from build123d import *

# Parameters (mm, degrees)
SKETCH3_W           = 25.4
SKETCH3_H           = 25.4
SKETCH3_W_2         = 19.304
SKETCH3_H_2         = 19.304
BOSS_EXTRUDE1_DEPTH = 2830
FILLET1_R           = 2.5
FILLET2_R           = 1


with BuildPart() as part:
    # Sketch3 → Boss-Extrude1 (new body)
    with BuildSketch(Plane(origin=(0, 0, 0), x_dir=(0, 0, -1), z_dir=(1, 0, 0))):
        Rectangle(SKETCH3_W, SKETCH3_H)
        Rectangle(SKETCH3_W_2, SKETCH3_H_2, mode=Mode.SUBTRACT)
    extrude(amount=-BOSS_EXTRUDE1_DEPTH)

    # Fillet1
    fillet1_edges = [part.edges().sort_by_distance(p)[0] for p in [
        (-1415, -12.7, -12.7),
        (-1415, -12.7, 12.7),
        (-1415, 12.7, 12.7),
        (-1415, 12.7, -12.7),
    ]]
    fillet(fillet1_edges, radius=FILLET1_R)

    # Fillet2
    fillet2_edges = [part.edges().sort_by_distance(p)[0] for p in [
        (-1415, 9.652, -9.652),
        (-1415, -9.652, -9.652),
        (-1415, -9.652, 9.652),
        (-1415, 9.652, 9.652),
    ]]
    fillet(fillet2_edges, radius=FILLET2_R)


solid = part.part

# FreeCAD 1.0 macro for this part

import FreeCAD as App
import Part
import Sketcher

V = App.Vector


def edges_at(feature, points):
    """Names of the edges that pass closest to the given points."""
    edges = feature.Shape.Edges
    near = lambda p: min(range(len(edges)), key=lambda i: edges[i].distToShape(Part.Vertex(*p))[0])
    return sorted({f"Edge{near(p) + 1}" for p in points})

doc = App.newDocument("Part")
body = doc.addObject("PartDesign::Body", "Body")

# Sketch on YZ plane
sketch1 = body.newObject("Sketcher::SketchObject", "Sketch")
sketch1.AttachmentSupport = (doc.getObject("YZ_Plane"), [""])
sketch1.MapMode = "FlatFace"
sketch1.addGeometry(Part.LineSegment(V(13, 13, 0), V(-13, 13, 0)), False)
sketch1.addGeometry(Part.LineSegment(V(-13, 13, 0), V(-13, -13, 0)), False)
sketch1.addGeometry(Part.LineSegment(V(-13, -13, 0), V(13, -13, 0)), False)
sketch1.addGeometry(Part.LineSegment(V(13, -13, 0), V(13, 13, 0)), False)
sketch1.addGeometry(Part.LineSegment(V(-10, -10, 0), V(-10, 10, 0)), False)
sketch1.addGeometry(Part.LineSegment(V(-10, 10, 0), V(10, 10, 0)), False)
sketch1.addGeometry(Part.LineSegment(V(10, 10, 0), V(10, -10, 0)), False)
sketch1.addGeometry(Part.LineSegment(V(10, -10, 0), V(-10, -10, 0)), False)
sketch1.addConstraint(Sketcher.Constraint("Coincident", 0, 2, 1, 1))
sketch1.addConstraint(Sketcher.Constraint("Coincident", 1, 2, 2, 1))
sketch1.addConstraint(Sketcher.Constraint("Coincident", 2, 2, 3, 1))
sketch1.addConstraint(Sketcher.Constraint("Coincident", 3, 2, 0, 1))
sketch1.addConstraint(Sketcher.Constraint("Coincident", 4, 2, 5, 1))
sketch1.addConstraint(Sketcher.Constraint("Coincident", 5, 2, 6, 1))
sketch1.addConstraint(Sketcher.Constraint("Coincident", 6, 2, 7, 1))
sketch1.addConstraint(Sketcher.Constraint("Coincident", 7, 2, 4, 1))
sketch1.addConstraint(Sketcher.Constraint("Horizontal", 0))
sketch1.addConstraint(Sketcher.Constraint("Vertical", 1))
sketch1.addConstraint(Sketcher.Constraint("Horizontal", 2))
sketch1.addConstraint(Sketcher.Constraint("Vertical", 3))
sketch1.addConstraint(Sketcher.Constraint("Vertical", 4))
sketch1.addConstraint(Sketcher.Constraint("Horizontal", 5))
sketch1.addConstraint(Sketcher.Constraint("Vertical", 6))
sketch1.addConstraint(Sketcher.Constraint("Horizontal", 7))
sketch1.addConstraint(Sketcher.Constraint("Symmetric", 0, 2, 2, 2, -1, 1))
sketch1.addConstraint(Sketcher.Constraint("Symmetric", 4, 2, 6, 2, -1, 1))
sketch1.addConstraint(Sketcher.Constraint("Equal", 2, 1))
sketch1.addConstraint(Sketcher.Constraint("Equal", 7, 4))
sketch1.addConstraint(Sketcher.Constraint("DistanceX", 0, 2, 0, 1, 25.4))
sketch1.addConstraint(Sketcher.Constraint("DistanceX", 5, 1, 5, 2, 19.304))
pad1 = body.newObject("PartDesign::Pad", "Pad")
pad1.Profile = sketch1
pad1.Length = 2830
pad1.Reversed = True
doc.recompute()

fillet = body.newObject("PartDesign::Fillet", "Fillet")
fillet.Base = (pad1, edges_at(pad1, [
    (-1415, -12.7, -12.7),
    (-1415, -12.7, 12.7),
    (-1415, 12.7, 12.7),
    (-1415, 12.7, -12.7),
]))
fillet.Radius = 2.5
doc.recompute()

fillet2 = body.newObject("PartDesign::Fillet", "Fillet001")
fillet2.Base = (fillet, edges_at(fillet, [
    (-1415, 9.652, -9.652),
    (-1415, -9.652, -9.652),
    (-1415, -9.652, 9.652),
    (-1415, 9.652, 9.652),
]))
fillet2.Radius = 1

doc.recompute()
